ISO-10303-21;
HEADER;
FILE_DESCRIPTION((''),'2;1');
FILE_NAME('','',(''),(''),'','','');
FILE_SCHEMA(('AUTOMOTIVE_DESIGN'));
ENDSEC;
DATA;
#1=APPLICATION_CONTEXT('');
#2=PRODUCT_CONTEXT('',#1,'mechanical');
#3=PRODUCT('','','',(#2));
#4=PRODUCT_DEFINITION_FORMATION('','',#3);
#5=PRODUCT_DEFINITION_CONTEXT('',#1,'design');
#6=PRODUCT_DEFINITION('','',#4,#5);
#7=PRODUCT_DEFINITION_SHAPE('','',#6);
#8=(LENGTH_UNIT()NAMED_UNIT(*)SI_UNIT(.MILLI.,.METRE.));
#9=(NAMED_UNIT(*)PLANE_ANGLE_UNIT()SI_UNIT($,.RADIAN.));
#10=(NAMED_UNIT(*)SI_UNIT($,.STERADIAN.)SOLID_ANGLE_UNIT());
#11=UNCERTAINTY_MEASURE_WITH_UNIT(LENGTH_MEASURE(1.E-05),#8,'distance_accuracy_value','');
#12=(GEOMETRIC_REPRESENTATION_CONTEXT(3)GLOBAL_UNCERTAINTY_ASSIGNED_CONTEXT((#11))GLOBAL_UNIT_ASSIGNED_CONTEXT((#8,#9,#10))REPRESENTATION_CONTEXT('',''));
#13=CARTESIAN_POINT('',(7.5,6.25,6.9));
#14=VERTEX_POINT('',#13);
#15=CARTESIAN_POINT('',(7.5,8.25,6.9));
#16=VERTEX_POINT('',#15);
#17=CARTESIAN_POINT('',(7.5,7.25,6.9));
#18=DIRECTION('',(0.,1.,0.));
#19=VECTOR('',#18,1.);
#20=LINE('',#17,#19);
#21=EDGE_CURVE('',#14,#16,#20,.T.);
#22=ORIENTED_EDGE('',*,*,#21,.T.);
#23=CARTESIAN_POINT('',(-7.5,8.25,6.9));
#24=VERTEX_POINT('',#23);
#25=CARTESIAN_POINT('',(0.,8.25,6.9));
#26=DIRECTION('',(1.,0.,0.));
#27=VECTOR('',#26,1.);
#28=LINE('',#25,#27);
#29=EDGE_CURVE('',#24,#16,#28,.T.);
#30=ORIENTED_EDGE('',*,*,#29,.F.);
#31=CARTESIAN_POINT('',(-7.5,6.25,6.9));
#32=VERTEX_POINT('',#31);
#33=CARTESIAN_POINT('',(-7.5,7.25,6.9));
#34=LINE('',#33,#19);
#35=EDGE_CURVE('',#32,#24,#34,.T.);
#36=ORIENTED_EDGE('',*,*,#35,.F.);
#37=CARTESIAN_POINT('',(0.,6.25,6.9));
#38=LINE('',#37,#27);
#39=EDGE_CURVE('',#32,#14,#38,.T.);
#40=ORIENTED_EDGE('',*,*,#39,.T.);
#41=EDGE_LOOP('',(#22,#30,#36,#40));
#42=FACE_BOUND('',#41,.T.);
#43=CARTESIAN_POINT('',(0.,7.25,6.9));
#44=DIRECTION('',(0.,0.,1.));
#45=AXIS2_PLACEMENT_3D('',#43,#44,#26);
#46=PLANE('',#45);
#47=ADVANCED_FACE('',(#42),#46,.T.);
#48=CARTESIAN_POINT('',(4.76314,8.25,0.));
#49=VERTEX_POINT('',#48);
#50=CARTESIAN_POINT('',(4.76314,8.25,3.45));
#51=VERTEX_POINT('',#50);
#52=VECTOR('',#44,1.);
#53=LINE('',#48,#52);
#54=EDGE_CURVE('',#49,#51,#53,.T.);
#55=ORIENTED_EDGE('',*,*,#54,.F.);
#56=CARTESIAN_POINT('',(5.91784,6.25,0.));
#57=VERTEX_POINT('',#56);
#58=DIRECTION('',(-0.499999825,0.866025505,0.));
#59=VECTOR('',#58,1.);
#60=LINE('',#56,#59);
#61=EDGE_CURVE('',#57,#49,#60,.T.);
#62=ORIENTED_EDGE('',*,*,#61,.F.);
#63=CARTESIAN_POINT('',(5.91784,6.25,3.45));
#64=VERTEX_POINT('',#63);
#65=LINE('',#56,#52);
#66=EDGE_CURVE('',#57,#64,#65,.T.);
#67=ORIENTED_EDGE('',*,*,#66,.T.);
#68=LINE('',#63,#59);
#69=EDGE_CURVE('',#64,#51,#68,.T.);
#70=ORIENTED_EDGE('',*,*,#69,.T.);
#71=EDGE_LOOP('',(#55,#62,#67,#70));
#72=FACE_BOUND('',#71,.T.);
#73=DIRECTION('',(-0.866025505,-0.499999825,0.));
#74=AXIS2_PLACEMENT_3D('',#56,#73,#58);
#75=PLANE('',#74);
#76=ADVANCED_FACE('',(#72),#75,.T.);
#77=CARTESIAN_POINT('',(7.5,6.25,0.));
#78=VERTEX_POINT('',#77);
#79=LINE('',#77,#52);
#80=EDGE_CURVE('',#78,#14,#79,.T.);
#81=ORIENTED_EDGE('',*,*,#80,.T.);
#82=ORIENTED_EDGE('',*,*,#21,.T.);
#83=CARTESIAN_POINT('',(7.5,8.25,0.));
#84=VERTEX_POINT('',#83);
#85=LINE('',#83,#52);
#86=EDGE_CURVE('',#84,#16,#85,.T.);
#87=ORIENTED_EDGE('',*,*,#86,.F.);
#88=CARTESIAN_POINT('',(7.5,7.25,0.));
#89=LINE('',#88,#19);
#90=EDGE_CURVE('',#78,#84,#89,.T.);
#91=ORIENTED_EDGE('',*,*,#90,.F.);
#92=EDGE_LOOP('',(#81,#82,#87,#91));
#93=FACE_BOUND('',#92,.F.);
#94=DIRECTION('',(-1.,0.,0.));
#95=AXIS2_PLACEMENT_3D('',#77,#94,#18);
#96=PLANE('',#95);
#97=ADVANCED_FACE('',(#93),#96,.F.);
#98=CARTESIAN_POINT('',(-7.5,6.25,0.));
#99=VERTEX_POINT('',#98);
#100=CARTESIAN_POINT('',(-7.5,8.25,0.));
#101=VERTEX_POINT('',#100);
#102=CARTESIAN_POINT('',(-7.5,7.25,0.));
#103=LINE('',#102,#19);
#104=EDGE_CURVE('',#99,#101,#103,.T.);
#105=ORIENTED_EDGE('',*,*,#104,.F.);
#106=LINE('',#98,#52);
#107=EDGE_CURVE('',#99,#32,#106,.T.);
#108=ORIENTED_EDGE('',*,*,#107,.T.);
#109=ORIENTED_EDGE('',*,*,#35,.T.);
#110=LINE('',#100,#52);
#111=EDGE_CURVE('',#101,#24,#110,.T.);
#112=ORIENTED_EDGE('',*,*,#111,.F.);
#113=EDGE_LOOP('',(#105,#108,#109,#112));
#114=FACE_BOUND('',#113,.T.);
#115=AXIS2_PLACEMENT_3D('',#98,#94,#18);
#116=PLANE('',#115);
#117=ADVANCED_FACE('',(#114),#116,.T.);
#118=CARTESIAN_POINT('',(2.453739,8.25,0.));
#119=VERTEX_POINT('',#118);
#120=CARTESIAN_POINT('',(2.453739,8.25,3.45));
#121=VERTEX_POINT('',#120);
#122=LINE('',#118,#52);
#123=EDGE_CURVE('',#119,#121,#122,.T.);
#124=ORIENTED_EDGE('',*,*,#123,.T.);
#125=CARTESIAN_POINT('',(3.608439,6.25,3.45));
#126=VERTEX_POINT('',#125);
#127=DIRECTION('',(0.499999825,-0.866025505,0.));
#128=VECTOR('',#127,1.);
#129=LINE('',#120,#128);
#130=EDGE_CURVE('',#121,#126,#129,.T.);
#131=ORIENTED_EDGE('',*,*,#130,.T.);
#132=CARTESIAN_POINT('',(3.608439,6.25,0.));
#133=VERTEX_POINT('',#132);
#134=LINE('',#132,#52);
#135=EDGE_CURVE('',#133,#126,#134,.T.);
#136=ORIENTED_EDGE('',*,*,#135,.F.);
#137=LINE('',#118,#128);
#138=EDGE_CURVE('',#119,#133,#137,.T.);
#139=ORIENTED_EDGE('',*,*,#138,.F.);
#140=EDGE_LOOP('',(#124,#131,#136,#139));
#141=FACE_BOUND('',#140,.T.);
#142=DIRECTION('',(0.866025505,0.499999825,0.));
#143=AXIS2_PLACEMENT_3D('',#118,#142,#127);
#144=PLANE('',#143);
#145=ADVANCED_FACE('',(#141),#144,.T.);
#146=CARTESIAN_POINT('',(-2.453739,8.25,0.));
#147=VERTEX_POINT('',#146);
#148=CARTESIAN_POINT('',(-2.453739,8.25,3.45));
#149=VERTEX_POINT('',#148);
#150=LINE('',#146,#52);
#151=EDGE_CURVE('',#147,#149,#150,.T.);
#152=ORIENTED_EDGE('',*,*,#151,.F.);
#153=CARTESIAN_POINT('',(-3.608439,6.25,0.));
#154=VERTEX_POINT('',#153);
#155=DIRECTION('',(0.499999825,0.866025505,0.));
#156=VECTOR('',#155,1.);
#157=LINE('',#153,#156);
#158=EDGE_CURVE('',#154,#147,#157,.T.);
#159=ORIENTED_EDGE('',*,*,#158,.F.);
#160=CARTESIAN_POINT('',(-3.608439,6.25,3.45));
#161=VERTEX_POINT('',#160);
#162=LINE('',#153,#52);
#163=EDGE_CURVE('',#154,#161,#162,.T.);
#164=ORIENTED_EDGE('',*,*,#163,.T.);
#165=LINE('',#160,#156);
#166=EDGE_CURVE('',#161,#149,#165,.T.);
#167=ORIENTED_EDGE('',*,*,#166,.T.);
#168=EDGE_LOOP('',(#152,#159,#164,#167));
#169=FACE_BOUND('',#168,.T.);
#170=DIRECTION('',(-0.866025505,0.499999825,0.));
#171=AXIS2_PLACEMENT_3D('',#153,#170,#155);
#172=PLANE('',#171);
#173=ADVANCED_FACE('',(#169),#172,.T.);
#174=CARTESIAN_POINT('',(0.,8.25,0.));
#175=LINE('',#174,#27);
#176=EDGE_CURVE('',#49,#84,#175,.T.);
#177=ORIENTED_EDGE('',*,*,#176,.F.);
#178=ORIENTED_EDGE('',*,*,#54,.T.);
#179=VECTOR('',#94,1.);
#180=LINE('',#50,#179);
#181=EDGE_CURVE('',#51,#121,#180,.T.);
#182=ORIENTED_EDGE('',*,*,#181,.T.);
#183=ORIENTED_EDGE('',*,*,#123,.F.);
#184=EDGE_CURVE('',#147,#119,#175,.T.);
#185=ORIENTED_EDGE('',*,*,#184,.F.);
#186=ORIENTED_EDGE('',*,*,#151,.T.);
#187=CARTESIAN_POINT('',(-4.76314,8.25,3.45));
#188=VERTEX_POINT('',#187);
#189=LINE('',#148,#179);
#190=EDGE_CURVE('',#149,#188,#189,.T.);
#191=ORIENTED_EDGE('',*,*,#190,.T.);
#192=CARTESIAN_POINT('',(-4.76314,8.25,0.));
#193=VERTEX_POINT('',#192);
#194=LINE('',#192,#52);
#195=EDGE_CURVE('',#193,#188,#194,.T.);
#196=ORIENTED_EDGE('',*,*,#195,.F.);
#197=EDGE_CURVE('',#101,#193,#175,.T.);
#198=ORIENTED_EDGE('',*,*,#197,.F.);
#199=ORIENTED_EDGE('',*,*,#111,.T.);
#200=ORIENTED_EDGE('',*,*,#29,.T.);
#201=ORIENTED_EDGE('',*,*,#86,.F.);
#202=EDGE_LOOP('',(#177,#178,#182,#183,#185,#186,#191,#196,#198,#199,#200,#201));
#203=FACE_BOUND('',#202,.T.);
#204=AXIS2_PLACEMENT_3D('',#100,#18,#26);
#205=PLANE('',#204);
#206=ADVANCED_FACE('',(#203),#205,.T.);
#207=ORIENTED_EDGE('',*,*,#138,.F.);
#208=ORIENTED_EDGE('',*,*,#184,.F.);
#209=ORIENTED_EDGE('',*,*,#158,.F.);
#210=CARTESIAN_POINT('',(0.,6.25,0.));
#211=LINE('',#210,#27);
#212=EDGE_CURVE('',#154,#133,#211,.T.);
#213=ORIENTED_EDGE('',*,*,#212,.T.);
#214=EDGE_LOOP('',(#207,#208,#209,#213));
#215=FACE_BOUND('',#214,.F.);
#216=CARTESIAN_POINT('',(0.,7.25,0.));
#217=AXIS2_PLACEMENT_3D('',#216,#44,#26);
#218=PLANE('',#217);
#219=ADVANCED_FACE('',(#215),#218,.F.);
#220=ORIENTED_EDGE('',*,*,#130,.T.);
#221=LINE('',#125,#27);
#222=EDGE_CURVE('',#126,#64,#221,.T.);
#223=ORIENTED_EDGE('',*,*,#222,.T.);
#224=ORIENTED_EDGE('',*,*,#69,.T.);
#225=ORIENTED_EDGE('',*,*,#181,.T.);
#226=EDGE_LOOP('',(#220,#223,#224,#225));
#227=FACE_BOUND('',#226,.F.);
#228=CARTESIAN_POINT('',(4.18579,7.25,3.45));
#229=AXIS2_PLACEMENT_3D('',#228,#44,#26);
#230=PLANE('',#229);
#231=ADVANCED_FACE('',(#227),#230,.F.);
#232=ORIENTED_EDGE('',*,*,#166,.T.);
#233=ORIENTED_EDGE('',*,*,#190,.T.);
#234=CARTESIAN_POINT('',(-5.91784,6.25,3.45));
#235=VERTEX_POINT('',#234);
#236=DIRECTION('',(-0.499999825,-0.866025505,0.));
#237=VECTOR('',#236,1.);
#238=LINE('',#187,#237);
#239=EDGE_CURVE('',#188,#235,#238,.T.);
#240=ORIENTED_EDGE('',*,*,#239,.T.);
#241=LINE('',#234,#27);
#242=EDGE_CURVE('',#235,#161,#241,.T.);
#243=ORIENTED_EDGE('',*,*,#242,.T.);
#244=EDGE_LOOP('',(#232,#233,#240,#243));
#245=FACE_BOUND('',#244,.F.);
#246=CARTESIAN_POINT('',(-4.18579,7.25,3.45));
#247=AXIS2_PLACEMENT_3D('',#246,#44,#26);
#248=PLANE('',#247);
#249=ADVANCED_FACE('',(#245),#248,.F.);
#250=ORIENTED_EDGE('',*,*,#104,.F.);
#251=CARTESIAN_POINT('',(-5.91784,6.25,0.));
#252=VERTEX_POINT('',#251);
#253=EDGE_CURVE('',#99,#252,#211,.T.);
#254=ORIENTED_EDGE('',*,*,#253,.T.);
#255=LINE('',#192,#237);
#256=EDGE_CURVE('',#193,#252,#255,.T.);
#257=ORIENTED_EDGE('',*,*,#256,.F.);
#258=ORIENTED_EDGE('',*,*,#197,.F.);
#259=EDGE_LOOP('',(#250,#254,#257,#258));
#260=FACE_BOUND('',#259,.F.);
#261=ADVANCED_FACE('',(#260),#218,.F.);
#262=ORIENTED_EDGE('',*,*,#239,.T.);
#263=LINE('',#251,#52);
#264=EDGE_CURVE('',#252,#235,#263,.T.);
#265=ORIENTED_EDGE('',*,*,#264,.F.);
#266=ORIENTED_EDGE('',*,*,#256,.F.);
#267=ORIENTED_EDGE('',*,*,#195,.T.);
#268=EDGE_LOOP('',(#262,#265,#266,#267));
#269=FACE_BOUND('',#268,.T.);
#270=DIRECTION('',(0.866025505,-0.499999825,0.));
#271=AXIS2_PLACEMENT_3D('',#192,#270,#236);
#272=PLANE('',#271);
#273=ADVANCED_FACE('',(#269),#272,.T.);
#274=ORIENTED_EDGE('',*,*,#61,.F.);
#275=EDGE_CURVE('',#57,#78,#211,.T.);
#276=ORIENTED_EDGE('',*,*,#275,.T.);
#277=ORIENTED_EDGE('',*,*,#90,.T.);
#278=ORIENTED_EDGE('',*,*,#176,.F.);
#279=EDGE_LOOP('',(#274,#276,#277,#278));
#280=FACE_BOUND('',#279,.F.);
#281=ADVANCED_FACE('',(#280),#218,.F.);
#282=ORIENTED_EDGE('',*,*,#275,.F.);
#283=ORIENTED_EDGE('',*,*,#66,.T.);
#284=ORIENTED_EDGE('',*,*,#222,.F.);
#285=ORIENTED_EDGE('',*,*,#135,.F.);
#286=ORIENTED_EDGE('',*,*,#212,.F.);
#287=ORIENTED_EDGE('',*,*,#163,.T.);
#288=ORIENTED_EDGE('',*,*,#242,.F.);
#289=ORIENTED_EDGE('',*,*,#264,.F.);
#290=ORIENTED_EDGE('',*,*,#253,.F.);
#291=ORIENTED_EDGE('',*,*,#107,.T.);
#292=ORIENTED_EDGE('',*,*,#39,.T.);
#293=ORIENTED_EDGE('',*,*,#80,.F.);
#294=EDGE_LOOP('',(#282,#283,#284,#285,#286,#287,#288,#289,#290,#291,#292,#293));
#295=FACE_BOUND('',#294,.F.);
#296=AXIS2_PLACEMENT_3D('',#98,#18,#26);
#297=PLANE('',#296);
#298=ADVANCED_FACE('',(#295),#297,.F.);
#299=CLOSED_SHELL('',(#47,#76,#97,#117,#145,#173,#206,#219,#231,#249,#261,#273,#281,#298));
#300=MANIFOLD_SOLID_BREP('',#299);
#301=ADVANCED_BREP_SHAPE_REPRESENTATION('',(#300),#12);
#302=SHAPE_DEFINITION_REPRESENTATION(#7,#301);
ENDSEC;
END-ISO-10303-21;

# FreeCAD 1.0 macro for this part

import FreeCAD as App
import Part
import Sketcher
from FreeCAD import Vector
Q = App.Units.Quantity


def add_polygon(sketch, points):
    """Adds a closed chain of lines whose ends are joined by coincident constraints."""
    first, n = sketch.GeometryCount, len(points)
    for a, b in zip(points, points[1:] + points[:1]):
        sketch.addGeometry(Part.LineSegment(App.Vector(*a, 0), App.Vector(*b, 0)), False)
    for i in range(n):
        sketch.addConstraint(Sketcher.Constraint("Coincident", first + i, 2, first + (i + 1) % n, 1))

doc = App.newDocument("Part")
body = doc.addObject("PartDesign::Body", "Body")

# Sketch on XY plane
sketch1 = doc.addObject("Sketcher::SketchObject", "Sketch")
body.addObject(sketch1)
sketch1.AttachmentSupport = (doc.XY_Plane, [""])
sketch1.MapMode = "FlatFace"
add_polygon(sketch1, [(-7.5, 8.2), (-7.5, 6.2), (7.5, 6.2), (7.5, 8.2)])  # lines 0-3
sketch1.addConstraint([
    Sketcher.Constraint("Vertical", 0),
    Sketcher.Constraint("Horizontal", 1),
    Sketcher.Constraint("Vertical", 2),
    Sketcher.Constraint("Horizontal", 3),
    Sketcher.Constraint("DistanceX", 1, 1, 1, 2, 15.0),
    Sketcher.Constraint("DistanceY", 0, 2, 0, 1, 2.0),
    Sketcher.Constraint("DistanceX", 0, 2, -1, 1, 7.5),
    Sketcher.Constraint("DistanceY", -1, 1, 0, 2, 6.25),
])
pad1 = doc.addObject("PartDesign::Pad", "Pad")
body.addObject(pad1)
pad1.Profile = sketch1
pad1.Length = 6.9

# Sketch on XY plane
sketch2 = doc.addObject("Sketcher::SketchObject", "Sketch001")
body.addObject(sketch2)
sketch2.AttachmentSupport = (doc.XY_Plane, [""])
sketch2.MapMode = "FlatFace"
add_polygon(sketch2, [(-4.8, 8.2), (-5.9, 6.2), (-3.6, 6.2), (-2.5, 8.2)])  # lines 0-3
add_polygon(sketch2, [(3.6, 6.2), (5.9, 6.2), (4.8, 8.2), (2.5, 8.2)])  # lines 4-7
sketch2.addConstraint([
    Sketcher.Constraint("Horizontal", 1),
    Sketcher.Constraint("Horizontal", 3),
    Sketcher.Constraint("Horizontal", 4),
    Sketcher.Constraint("Horizontal", 6),
    Sketcher.Constraint("Symmetric", 0, 2, 4, 2, -2),
    Sketcher.Constraint("Symmetric", 3, 2, 5, 2, -2),
    Sketcher.Constraint("Parallel", 0, 2),
    Sketcher.Constraint("Parallel", 5, 7),
    Sketcher.Constraint("Equal", 3, 4),
    Sketcher.Constraint("Angle", 0, Q("-119.999988 deg")),
    Sketcher.Constraint("DistanceY", 1, 2, 2, 2, 2.0),
    Sketcher.Constraint("DistanceY", -1, 1, 0, 2, 6.25),
    Sketcher.Constraint("DistanceX", 1, 1, 1, 2, 2.309401),
    Sketcher.Constraint("DistanceX", 0, 2, -1, 1, 5.91784),
])
pocket1 = doc.addObject("PartDesign::Pocket", "Pocket")
body.addObject(pocket1)
pocket1.Profile = sketch2
pocket1.Length = 3.45
pocket1.Reversed = True

doc.recompute()
